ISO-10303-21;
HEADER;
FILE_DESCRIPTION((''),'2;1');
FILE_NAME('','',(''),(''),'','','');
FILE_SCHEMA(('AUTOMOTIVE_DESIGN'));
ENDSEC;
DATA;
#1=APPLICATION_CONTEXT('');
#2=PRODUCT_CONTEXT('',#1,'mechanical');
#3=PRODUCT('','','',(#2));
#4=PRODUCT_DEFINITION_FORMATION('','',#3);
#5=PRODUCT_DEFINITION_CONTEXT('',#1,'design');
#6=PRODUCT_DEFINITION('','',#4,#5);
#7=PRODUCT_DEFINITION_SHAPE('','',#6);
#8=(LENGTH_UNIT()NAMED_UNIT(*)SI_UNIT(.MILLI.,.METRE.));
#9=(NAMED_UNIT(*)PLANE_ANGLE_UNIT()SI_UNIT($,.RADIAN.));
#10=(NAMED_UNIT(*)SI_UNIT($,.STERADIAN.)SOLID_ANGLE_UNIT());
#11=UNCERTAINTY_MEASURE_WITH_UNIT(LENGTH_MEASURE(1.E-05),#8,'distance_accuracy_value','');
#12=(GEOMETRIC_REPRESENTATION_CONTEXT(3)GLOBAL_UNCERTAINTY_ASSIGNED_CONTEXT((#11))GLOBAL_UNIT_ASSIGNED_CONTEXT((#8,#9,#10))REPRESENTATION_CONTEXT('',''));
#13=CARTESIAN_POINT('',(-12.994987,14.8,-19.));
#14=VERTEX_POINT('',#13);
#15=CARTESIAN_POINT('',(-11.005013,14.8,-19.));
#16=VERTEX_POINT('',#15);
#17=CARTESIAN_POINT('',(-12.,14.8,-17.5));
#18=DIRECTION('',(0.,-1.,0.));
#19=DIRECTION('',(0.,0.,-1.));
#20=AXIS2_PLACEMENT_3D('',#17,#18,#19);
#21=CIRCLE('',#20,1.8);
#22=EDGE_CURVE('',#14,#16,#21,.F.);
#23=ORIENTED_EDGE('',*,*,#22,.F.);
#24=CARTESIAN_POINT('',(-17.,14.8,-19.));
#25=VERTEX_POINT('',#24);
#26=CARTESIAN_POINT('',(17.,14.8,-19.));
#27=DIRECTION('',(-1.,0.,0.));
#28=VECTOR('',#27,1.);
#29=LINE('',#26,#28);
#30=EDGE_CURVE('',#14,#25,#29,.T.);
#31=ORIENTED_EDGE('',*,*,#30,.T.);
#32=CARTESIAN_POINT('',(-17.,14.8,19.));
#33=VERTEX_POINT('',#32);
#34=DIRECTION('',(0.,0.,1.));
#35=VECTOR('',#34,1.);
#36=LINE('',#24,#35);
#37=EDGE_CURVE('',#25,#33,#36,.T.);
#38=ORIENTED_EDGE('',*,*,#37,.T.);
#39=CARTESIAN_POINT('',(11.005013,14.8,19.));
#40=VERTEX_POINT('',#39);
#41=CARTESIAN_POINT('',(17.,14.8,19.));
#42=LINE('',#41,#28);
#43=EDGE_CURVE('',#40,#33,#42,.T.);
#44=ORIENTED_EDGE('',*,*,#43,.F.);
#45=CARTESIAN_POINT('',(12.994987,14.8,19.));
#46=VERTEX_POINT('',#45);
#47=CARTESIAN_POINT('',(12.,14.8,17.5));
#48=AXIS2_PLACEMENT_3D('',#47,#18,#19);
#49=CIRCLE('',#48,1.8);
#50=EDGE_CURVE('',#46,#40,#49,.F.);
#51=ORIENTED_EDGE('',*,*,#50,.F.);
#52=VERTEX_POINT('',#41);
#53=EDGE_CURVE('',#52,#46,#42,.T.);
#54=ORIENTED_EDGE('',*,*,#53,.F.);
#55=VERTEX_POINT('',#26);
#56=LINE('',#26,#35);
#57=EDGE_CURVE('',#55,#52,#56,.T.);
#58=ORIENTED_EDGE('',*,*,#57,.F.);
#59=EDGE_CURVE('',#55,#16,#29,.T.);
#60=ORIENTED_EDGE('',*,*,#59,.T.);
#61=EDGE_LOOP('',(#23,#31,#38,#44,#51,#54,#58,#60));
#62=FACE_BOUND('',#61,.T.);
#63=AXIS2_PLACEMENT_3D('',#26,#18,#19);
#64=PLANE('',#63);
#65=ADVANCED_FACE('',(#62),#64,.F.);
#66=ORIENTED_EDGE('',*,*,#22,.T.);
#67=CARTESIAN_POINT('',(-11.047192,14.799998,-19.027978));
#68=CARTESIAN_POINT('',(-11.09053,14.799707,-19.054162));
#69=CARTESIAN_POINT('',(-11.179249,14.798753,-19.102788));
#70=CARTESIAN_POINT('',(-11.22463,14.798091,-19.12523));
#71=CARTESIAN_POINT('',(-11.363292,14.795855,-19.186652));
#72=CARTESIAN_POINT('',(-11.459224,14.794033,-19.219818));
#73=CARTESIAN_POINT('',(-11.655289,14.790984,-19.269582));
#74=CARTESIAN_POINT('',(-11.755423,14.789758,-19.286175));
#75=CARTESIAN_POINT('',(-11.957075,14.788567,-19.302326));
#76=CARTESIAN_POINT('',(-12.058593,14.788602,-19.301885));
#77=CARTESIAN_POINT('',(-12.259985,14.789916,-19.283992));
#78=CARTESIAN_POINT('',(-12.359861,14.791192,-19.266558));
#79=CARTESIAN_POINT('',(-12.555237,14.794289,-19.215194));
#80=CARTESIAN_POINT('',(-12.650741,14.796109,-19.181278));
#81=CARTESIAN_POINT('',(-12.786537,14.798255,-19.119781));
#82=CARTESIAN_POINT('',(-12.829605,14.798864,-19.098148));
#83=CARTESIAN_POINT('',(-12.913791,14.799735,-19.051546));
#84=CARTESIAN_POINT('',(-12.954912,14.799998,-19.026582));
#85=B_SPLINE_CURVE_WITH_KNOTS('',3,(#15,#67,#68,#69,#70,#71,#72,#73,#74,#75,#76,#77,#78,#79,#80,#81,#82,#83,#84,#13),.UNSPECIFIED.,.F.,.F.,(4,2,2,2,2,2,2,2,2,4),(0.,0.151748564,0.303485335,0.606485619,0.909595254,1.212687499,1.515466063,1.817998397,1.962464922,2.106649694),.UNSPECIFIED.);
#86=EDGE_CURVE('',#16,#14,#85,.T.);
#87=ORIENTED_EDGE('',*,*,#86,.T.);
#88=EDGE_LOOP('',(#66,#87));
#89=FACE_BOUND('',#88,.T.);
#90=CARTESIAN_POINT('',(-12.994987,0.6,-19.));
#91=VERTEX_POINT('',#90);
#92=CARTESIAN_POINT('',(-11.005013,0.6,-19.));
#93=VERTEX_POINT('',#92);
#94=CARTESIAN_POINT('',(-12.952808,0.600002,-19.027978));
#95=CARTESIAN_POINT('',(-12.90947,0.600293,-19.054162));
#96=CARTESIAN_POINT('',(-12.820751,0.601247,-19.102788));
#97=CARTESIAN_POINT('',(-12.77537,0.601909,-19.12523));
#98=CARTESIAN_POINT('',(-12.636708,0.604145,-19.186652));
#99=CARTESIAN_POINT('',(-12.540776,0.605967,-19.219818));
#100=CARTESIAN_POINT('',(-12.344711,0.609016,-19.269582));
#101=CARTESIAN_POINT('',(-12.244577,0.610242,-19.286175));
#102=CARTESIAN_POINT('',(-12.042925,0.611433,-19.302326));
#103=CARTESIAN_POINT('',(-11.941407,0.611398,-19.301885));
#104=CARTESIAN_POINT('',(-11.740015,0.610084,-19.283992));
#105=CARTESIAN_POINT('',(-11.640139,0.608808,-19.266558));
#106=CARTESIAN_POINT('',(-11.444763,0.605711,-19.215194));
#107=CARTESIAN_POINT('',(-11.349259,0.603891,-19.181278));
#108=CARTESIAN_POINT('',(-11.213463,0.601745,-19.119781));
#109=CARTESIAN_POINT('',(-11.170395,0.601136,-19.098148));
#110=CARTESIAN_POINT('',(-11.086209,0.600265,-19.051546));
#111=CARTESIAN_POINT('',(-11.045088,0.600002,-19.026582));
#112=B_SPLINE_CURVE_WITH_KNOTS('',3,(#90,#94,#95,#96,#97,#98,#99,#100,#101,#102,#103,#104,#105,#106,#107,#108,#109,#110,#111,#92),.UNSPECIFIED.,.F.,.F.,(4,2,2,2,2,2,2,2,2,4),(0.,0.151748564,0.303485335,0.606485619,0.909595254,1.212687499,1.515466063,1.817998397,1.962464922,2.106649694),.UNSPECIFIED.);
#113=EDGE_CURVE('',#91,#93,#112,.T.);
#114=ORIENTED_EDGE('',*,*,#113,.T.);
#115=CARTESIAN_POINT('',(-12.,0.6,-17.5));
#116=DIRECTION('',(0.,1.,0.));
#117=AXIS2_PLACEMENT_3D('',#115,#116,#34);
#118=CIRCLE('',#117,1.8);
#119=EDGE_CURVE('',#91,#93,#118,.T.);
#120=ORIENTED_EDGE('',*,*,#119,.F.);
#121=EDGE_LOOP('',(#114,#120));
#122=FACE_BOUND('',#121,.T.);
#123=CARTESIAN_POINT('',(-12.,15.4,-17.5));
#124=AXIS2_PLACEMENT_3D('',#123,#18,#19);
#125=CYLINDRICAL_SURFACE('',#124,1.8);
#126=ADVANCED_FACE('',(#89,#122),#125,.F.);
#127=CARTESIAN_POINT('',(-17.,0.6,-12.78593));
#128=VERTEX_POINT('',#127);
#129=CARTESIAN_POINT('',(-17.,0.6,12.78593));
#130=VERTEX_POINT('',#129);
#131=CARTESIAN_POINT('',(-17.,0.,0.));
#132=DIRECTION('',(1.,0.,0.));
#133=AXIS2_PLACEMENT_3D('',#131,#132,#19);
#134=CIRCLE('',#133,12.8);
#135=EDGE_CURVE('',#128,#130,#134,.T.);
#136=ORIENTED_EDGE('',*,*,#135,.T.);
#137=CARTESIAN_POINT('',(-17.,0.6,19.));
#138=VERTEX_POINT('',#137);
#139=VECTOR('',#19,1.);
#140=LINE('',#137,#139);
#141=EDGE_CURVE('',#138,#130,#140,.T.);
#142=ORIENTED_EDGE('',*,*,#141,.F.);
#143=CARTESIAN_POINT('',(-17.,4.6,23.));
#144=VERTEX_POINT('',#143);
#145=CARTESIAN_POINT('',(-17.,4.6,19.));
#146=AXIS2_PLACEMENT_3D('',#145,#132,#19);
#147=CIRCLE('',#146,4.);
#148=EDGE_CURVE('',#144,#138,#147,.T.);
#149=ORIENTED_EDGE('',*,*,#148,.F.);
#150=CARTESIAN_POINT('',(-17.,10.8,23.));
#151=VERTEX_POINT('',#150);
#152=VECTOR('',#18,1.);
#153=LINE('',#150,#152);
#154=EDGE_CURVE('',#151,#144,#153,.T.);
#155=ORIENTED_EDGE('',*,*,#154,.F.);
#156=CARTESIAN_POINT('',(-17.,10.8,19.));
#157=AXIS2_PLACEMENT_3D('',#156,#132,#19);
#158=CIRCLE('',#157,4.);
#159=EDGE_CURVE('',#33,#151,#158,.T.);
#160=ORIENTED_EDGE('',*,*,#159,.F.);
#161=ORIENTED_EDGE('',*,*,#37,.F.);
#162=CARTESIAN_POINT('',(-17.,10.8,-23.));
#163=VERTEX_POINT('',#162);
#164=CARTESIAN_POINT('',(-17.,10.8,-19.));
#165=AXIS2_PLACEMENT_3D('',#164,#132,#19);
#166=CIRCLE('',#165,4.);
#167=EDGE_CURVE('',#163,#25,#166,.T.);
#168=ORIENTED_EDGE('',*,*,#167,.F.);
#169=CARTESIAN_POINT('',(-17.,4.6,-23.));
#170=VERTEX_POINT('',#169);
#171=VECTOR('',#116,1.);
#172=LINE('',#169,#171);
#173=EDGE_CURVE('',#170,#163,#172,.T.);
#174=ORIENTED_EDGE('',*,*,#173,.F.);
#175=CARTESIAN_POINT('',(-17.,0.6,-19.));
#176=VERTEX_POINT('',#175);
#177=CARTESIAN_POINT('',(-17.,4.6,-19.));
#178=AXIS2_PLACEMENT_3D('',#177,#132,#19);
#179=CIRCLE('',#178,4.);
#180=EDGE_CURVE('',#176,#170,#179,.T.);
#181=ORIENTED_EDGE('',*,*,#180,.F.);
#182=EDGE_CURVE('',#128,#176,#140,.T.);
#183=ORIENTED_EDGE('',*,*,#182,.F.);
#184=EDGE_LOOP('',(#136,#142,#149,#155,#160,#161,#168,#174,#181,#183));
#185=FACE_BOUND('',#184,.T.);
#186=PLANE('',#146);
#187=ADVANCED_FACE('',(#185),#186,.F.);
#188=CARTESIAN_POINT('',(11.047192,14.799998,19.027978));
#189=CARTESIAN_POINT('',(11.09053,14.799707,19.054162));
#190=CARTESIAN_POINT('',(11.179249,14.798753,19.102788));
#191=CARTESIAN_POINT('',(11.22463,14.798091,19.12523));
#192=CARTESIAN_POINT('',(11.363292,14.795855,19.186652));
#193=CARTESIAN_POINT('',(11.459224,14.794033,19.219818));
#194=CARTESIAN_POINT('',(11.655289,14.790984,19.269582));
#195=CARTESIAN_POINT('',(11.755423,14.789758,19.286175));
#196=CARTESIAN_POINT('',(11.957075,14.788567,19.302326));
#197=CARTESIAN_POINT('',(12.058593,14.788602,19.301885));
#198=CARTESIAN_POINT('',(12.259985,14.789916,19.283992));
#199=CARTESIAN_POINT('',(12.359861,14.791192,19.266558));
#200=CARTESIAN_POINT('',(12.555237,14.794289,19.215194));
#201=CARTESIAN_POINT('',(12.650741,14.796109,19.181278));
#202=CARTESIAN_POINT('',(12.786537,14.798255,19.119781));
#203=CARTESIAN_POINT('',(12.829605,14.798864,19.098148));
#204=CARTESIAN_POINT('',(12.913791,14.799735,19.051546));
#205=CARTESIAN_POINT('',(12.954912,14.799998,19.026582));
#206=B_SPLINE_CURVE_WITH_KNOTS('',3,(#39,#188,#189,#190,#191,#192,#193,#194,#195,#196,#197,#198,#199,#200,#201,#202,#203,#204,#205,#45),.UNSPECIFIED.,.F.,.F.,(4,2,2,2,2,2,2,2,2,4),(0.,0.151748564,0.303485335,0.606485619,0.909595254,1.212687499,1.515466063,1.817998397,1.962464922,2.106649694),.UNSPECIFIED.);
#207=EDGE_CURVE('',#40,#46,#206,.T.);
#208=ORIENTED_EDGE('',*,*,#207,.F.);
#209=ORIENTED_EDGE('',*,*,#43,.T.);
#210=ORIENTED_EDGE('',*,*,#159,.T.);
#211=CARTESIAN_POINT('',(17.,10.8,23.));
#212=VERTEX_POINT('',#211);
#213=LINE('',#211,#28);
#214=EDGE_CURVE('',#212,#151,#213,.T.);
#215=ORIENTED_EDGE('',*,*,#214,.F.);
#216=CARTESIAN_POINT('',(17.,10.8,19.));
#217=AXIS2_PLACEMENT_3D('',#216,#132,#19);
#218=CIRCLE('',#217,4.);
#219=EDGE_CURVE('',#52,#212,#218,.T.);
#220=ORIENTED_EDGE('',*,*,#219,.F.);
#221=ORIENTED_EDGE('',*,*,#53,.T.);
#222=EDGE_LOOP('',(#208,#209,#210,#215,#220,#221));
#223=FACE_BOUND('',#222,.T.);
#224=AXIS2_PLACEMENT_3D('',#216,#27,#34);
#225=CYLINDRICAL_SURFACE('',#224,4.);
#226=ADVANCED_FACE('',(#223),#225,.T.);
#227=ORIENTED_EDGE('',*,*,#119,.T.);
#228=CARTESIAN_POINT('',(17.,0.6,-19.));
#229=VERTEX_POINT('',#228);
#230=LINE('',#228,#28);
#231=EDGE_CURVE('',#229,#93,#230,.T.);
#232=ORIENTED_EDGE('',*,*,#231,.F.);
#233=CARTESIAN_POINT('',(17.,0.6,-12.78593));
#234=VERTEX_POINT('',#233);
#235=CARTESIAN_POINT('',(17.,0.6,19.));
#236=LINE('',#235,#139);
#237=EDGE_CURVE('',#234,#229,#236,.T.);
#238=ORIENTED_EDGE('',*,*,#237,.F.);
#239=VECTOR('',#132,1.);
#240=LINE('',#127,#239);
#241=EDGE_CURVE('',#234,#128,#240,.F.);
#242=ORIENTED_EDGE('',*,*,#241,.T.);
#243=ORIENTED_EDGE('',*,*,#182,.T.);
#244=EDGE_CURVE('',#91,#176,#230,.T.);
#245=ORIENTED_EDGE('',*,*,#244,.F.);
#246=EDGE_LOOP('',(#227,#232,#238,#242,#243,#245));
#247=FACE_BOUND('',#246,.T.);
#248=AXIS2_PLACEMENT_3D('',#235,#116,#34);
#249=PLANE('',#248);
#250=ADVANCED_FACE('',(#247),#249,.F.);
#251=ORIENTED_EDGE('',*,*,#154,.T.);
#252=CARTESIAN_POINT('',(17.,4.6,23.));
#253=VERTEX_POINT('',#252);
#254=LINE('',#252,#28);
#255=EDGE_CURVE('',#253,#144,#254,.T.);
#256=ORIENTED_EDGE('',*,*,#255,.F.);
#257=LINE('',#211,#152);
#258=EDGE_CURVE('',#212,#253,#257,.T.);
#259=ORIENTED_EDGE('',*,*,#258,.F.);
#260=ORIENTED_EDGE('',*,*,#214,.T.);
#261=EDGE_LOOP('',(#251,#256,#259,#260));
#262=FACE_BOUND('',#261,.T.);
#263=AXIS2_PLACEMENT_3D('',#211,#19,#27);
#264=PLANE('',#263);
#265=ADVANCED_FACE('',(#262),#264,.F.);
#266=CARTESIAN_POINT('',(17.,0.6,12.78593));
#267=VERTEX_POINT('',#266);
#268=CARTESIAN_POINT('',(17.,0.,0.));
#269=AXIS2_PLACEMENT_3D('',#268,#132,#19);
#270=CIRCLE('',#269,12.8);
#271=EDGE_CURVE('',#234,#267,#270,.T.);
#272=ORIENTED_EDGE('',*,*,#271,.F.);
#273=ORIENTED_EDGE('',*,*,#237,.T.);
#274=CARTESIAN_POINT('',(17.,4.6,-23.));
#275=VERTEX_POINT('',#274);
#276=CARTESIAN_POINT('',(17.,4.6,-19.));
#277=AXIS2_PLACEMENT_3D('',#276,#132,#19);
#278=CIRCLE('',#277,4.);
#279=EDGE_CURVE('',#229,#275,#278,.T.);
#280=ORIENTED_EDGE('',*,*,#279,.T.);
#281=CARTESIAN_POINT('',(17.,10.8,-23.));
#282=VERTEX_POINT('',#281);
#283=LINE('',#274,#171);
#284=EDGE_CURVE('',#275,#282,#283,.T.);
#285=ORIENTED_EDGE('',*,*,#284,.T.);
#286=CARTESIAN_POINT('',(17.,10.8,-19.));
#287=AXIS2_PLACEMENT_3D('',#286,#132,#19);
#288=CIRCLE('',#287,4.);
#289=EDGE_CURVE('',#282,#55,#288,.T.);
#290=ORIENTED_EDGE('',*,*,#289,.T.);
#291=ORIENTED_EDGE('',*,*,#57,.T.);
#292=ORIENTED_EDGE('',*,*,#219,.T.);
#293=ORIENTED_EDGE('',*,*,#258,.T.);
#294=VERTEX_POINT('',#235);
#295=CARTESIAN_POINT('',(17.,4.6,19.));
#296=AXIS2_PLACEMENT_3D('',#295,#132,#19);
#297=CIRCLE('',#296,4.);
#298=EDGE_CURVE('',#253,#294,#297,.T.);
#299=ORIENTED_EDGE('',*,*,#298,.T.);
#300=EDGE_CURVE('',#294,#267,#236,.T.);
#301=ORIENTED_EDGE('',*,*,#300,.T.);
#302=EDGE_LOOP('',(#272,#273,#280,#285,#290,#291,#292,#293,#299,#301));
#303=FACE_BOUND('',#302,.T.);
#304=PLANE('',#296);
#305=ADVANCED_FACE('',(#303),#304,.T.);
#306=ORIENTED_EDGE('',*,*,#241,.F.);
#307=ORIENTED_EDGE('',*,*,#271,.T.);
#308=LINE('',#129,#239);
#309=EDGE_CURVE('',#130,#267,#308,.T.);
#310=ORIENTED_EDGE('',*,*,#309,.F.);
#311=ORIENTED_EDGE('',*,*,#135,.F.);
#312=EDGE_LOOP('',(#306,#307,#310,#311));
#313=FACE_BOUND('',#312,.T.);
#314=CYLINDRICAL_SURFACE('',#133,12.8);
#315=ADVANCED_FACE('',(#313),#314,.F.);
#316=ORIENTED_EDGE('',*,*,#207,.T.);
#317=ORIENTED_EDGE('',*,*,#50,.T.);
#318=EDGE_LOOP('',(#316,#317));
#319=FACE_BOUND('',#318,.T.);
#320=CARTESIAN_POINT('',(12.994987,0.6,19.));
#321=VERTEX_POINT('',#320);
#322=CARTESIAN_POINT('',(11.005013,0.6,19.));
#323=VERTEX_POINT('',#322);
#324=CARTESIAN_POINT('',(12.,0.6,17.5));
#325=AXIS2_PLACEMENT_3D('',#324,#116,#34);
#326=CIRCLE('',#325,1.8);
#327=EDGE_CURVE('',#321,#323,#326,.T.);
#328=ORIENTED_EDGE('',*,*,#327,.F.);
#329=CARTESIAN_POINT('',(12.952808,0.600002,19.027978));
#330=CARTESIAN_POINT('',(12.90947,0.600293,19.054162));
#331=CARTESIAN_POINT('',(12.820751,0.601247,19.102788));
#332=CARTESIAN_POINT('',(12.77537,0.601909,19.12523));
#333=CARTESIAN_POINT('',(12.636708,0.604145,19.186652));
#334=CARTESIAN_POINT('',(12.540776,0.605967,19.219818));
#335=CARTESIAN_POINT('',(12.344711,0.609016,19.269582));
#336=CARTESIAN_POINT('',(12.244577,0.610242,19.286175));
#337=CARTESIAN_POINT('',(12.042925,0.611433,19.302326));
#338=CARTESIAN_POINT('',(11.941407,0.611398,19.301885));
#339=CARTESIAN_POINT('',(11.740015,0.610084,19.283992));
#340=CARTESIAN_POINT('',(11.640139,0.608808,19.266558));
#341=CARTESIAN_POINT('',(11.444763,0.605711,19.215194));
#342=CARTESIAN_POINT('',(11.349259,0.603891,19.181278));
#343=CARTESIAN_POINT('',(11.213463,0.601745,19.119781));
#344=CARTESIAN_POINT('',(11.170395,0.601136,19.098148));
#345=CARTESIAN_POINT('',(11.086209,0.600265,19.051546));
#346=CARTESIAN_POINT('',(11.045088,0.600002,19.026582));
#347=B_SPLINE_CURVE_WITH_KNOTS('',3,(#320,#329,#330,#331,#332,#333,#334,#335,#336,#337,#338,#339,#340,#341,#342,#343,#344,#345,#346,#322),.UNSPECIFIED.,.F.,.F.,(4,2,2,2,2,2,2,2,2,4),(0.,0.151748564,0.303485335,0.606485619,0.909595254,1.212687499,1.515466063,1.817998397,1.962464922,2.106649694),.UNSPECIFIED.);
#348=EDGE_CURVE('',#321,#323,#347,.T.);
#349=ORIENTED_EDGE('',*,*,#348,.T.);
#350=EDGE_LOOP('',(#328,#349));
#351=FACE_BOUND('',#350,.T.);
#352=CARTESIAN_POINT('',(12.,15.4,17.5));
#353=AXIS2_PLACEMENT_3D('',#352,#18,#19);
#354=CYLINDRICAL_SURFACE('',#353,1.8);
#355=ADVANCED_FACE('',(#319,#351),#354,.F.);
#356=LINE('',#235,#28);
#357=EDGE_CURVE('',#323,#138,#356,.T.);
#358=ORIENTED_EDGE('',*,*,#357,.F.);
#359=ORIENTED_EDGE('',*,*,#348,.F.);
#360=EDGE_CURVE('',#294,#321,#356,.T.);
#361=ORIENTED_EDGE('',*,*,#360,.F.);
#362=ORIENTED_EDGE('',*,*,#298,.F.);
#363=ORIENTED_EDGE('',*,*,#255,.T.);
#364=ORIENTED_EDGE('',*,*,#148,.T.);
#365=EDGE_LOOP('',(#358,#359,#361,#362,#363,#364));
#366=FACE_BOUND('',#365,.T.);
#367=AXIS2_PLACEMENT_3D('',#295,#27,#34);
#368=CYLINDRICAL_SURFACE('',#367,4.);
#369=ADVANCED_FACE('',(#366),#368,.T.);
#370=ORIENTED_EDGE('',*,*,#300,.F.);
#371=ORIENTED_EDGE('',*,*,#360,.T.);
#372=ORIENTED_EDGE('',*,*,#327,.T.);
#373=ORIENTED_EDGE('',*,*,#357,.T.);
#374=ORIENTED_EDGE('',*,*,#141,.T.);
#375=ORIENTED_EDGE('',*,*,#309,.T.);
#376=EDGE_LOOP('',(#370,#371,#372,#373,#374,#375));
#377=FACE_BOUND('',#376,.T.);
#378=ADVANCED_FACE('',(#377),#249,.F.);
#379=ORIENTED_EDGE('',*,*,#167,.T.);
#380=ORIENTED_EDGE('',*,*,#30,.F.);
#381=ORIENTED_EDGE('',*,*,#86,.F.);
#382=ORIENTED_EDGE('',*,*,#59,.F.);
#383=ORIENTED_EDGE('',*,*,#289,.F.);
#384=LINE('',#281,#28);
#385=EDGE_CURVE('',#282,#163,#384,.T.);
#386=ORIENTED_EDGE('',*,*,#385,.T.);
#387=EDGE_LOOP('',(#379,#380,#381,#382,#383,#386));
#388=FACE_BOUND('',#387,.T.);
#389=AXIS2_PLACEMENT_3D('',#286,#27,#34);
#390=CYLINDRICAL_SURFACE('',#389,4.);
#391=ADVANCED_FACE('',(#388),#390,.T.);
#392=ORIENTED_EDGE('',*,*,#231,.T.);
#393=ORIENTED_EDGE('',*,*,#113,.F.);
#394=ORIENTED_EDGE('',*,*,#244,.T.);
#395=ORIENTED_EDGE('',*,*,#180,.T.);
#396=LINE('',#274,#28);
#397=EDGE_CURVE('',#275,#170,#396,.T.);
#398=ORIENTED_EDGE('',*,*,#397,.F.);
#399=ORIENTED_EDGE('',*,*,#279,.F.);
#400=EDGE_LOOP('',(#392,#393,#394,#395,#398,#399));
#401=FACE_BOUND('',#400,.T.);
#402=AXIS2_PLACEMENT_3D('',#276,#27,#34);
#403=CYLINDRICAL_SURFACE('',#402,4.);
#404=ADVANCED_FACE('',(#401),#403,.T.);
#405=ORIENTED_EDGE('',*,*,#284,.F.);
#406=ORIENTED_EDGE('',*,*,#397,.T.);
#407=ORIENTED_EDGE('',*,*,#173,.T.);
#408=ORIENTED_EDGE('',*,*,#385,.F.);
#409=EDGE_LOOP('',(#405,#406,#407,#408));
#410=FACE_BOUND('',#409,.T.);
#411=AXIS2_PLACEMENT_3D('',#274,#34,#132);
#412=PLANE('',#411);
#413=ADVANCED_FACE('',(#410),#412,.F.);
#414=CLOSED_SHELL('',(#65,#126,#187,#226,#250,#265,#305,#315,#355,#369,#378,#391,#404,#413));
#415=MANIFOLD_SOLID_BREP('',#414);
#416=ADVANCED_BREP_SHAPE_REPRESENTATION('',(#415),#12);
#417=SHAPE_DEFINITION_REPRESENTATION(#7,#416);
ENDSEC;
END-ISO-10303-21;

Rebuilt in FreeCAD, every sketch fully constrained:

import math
import FreeCAD as App
import Part
import Sketcher

V = App.Vector
Q = App.Units.Quantity

doc = App.newDocument("Part")
params = doc.addObject("Spreadsheet::Sheet", "Params")
for row, (alias, value) in enumerate([
    ("sketch1_radius", "4 mm"),
    ("sketch1_height", "38 mm"),
    ("sketch1_width", "6.2 mm"),
    ("pad1_length", "34 mm"),
    ("sketch2_diameter", "25.6 mm"),
    ("sketch3_diameter", "3.6 mm"),
    ("pocket2_length", "14.8 mm"),
], start=1):
    params.set(f"A{row}", alias)
    params.set(f"B{row}", "=" + value)
    params.setAlias(f"B{row}", alias)

body = doc.addObject("PartDesign::Body", "Body")

# Sketch on YZ plane
sketch1 = body.newObject("Sketcher::SketchObject", "Sketch")
sketch1.AttachmentSupport = (doc.getObject("YZ_Plane"), [""])
sketch1.MapMode = "FlatFace"
sketch1.addGeometry(Part.LineSegment(V(0.6, 19, 0), V(0.6, -19, 0)), False)
sketch1.addGeometry(Part.ArcOfCircle(Part.Circle(V(4.6, -19, 0), V(0, 0, 1), 4), math.radians(180), math.radians(270)), False)
sketch1.addGeometry(Part.LineSegment(V(4.6, -23, 0), V(10.8, -23, 0)), False)
sketch1.addGeometry(Part.ArcOfCircle(Part.Circle(V(10.8, -19, 0), V(0, 0, 1), 4), math.radians(-90), math.radians(0)), False)
sketch1.addGeometry(Part.LineSegment(V(14.8, -19, 0), V(14.8, 19, 0)), False)
sketch1.addGeometry(Part.ArcOfCircle(Part.Circle(V(10.8, 19, 0), V(0, 0, 1), 4), math.radians(0), math.radians(90)), False)
sketch1.addGeometry(Part.LineSegment(V(10.8, 23, 0), V(4.6, 23, 0)), False)
sketch1.addGeometry(Part.ArcOfCircle(Part.Circle(V(4.6, 19, 0), V(0, 0, 1), 4), math.radians(90), math.radians(180)), False)
sketch1.addConstraint(Sketcher.Constraint("Tangent", 0, 2, 1, 1))
sketch1.addConstraint(Sketcher.Constraint("Tangent", 1, 2, 2, 1))
sketch1.addConstraint(Sketcher.Constraint("Tangent", 2, 2, 3, 1))
sketch1.addConstraint(Sketcher.Constraint("Tangent", 3, 2, 4, 1))
sketch1.addConstraint(Sketcher.Constraint("Tangent", 4, 2, 5, 1))
sketch1.addConstraint(Sketcher.Constraint("Tangent", 5, 2, 6, 1))
sketch1.addConstraint(Sketcher.Constraint("Tangent", 6, 2, 7, 1))
sketch1.addConstraint(Sketcher.Constraint("Tangent", 7, 2, 0, 1))
sketch1.addConstraint(Sketcher.Constraint("Vertical", 0))
sketch1.addConstraint(Sketcher.Constraint("Horizontal", 2))
sketch1.addConstraint(Sketcher.Constraint("Vertical", 4))
sketch1.addConstraint(Sketcher.Constraint("Horizontal", 6))
sketch1.addConstraint(Sketcher.Constraint("Equal", 1, 3))
sketch1.addConstraint(Sketcher.Constraint("Equal", 3, 5))
sketch1.addConstraint(Sketcher.Constraint("Equal", 5, 7))
sketch1.addConstraint(Sketcher.Constraint("Radius", 1, Q("4 mm")))
sketch1.addConstraint(Sketcher.Constraint("DistanceY", 0, 2, 0, 1, Q("38 mm")))
sketch1.addConstraint(Sketcher.Constraint("DistanceX", 2, 1, 2, 2, Q("6.2 mm")))
sketch1.addConstraint(Sketcher.Constraint("DistanceY", 1, 3, -1, 1, Q("19 mm")))
sketch1.addConstraint(Sketcher.Constraint("DistanceX", -1, 1, 1, 3, Q("4.6 mm")))
sketch1.setExpression("Constraints[15]", "Params.sketch1_radius")
sketch1.setExpression("Constraints[16]", "Params.sketch1_height")
sketch1.setExpression("Constraints[17]", "Params.sketch1_width")
pad1 = body.newObject("PartDesign::Pad", "Pad")
pad1.Profile = sketch1
pad1.setExpression("Length", "Params.pad1_length")
pad1.Midplane = True

# Sketch on YZ plane
sketch2 = body.newObject("Sketcher::SketchObject", "Sketch001")
sketch2.AttachmentSupport = (doc.getObject("YZ_Plane"), [""])
sketch2.MapMode = "FlatFace"
sketch2.addGeometry(Part.Circle(V(0, 0, 0), V(0, 0, 1), 12.8), False)
sketch2.addConstraint(Sketcher.Constraint("Coincident", 0, 3, -1, 1))
sketch2.addConstraint(Sketcher.Constraint("Diameter", 0, Q("25.6 mm")))
sketch2.setExpression("Constraints[1]", "Params.sketch2_diameter")
pocket1 = body.newObject("PartDesign::Pocket", "Pocket")
pocket1.Profile = sketch2
pocket1.Type = "ThroughAll"
pocket1.Midplane = True

# Sketch on XZ plane
sketch3 = body.newObject("Sketcher::SketchObject", "Sketch002")
sketch3.AttachmentSupport = (doc.getObject("XZ_Plane"), [""])
sketch3.MapMode = "FlatFace"
sketch3.AttachmentOffset = App.Placement(V(0, 0, -0.6), App.Rotation())
sketch3.addGeometry(Part.Circle(V(12, 17.5, 0), V(0, 0, 1), 1.8), False)
sketch3.addGeometry(Part.Circle(V(-12, -17.5, 0), V(0, 0, 1), 1.8), False)
sketch3.addConstraint(Sketcher.Constraint("Equal", 0, 1))
sketch3.addConstraint(Sketcher.Constraint("Symmetric", 0, 3, 1, 3, -1, 1))
sketch3.addConstraint(Sketcher.Constraint("Diameter", 0, Q("3.6 mm")))
sketch3.addConstraint(Sketcher.Constraint("DistanceX", -1, 1, 0, 3, Q("12 mm")))
sketch3.addConstraint(Sketcher.Constraint("DistanceY", 1, 3, 0, 3, Q("35 mm")))
sketch3.setExpression("Constraints[2]", "Params.sketch3_diameter")
pocket2 = body.newObject("PartDesign::Pocket", "Pocket001")
pocket2.Profile = sketch3
pocket2.setExpression("Length", "Params.pocket2_length")

doc.recompute()
